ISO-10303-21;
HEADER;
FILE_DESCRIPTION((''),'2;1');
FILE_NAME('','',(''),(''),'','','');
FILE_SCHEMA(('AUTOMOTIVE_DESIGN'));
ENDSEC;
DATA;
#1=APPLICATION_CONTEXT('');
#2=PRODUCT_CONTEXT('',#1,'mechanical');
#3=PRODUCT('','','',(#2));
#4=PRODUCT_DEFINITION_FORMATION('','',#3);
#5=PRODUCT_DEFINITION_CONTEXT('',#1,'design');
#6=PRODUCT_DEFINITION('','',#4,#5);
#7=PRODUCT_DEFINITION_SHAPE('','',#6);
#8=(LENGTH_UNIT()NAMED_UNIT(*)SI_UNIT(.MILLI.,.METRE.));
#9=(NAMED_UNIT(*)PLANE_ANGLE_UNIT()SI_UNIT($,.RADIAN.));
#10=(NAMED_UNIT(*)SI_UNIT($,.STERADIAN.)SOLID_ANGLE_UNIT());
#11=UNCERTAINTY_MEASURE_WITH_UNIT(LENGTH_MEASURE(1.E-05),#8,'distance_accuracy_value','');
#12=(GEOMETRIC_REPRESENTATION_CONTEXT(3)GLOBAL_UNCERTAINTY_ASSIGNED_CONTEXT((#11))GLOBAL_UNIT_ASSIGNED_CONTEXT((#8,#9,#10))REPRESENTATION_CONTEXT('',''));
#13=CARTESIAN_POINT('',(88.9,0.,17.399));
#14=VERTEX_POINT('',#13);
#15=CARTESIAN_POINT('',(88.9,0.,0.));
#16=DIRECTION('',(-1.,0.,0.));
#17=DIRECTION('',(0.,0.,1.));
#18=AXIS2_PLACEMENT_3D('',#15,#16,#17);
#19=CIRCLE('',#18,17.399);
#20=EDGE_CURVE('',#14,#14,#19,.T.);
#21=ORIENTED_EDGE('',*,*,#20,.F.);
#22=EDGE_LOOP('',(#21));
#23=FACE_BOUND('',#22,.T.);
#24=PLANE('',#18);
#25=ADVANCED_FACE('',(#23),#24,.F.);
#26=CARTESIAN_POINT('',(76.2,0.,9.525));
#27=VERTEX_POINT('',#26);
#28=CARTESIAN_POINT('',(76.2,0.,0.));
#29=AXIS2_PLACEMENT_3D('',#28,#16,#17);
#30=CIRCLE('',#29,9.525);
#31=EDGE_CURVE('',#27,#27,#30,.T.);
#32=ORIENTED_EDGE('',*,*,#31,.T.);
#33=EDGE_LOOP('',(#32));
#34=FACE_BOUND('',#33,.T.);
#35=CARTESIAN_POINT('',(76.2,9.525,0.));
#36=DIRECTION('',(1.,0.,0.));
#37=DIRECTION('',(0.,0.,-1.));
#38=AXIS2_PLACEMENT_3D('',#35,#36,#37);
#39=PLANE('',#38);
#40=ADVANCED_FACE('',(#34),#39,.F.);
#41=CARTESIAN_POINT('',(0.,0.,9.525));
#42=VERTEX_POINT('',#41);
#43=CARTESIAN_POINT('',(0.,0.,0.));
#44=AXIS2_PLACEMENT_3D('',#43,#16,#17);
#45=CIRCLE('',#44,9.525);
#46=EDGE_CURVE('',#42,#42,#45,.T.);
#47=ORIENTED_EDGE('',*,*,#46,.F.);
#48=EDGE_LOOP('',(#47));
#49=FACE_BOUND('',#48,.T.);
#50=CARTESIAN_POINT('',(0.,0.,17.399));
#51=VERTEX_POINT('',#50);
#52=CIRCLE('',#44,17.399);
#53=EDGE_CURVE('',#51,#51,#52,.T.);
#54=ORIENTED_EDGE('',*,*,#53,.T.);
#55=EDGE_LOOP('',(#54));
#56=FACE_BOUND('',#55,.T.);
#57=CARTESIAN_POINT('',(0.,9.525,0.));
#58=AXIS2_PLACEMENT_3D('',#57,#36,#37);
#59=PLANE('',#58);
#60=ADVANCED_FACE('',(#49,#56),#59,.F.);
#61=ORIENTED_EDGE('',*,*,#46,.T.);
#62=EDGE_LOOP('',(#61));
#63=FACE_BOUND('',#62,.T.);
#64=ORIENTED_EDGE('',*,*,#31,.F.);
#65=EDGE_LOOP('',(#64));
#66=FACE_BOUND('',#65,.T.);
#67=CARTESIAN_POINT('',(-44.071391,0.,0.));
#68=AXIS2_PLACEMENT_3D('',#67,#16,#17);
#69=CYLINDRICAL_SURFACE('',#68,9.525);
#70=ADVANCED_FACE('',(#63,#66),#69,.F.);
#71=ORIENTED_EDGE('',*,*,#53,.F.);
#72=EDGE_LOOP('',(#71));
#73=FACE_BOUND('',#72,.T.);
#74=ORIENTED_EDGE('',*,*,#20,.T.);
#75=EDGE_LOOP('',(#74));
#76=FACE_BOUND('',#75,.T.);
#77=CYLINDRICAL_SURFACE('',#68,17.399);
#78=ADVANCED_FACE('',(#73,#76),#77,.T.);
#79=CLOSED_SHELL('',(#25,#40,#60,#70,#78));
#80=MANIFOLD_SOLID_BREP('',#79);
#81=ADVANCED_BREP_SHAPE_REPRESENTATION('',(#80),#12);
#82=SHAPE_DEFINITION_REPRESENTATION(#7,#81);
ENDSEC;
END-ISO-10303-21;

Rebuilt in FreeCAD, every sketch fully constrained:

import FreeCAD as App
import Part
import Sketcher
Q = App.Units.Quantity


def add_polygon(sketch, points):
    """Adds a closed chain of lines whose ends are joined by coincident constraints."""
    first, n = sketch.GeometryCount, len(points)
    for a, b in zip(points, points[1:] + points[:1]):
        sketch.addGeometry(Part.LineSegment(App.Vector(*a, 0), App.Vector(*b, 0)), False)
    for i in range(n):
        sketch.addConstraint(Sketcher.Constraint("Coincident", first + i, 2, first + (i + 1) % n, 1))

doc = App.newDocument("Part")
body = doc.addObject("PartDesign::Body", "Body")

# Sketch on XY plane
sketch1 = doc.addObject("Sketcher::SketchObject", "Sketch")
body.addObject(sketch1)
sketch1.AttachmentSupport = (doc.XY_Plane, [""])
sketch1.MapMode = "FlatFace"
add_polygon(sketch1, [(76, 0), (89, 0), (89, 17), (0, 17), (0, 10), (76, 10)])  # lines 0-5
sketch1.addConstraint([
    Sketcher.Constraint("Horizontal", 0),
    Sketcher.Constraint("Vertical", 1),
    Sketcher.Constraint("Horizontal", 2),
    Sketcher.Constraint("Vertical", 3),
    Sketcher.Constraint("Horizontal", 4),
    Sketcher.Constraint("Vertical", 5),
    Sketcher.Constraint("PointOnObject", 0, 2, -1),
    Sketcher.Constraint("PointOnObject", 2, 2, -2),
    Sketcher.Constraint("DistanceX", 4, 1, 4, 2, Q("3 in")),
    Sketcher.Constraint("DistanceX", 0, 1, 0, 2, Q("0.5 in")),
    Sketcher.Constraint("DistanceY", 3, 2, 3, 1, Q("0.31 in")),
    Sketcher.Constraint("DistanceY", 1, 1, 1, 2, Q("0.685 in")),
])
revolution = doc.addObject("PartDesign::Revolution", "Revolution")
body.addObject(revolution)
revolution.Profile = sketch1
revolution.ReferenceAxis = (sketch1, ["H_Axis"])
revolution.Angle = 360

doc.recompute()
